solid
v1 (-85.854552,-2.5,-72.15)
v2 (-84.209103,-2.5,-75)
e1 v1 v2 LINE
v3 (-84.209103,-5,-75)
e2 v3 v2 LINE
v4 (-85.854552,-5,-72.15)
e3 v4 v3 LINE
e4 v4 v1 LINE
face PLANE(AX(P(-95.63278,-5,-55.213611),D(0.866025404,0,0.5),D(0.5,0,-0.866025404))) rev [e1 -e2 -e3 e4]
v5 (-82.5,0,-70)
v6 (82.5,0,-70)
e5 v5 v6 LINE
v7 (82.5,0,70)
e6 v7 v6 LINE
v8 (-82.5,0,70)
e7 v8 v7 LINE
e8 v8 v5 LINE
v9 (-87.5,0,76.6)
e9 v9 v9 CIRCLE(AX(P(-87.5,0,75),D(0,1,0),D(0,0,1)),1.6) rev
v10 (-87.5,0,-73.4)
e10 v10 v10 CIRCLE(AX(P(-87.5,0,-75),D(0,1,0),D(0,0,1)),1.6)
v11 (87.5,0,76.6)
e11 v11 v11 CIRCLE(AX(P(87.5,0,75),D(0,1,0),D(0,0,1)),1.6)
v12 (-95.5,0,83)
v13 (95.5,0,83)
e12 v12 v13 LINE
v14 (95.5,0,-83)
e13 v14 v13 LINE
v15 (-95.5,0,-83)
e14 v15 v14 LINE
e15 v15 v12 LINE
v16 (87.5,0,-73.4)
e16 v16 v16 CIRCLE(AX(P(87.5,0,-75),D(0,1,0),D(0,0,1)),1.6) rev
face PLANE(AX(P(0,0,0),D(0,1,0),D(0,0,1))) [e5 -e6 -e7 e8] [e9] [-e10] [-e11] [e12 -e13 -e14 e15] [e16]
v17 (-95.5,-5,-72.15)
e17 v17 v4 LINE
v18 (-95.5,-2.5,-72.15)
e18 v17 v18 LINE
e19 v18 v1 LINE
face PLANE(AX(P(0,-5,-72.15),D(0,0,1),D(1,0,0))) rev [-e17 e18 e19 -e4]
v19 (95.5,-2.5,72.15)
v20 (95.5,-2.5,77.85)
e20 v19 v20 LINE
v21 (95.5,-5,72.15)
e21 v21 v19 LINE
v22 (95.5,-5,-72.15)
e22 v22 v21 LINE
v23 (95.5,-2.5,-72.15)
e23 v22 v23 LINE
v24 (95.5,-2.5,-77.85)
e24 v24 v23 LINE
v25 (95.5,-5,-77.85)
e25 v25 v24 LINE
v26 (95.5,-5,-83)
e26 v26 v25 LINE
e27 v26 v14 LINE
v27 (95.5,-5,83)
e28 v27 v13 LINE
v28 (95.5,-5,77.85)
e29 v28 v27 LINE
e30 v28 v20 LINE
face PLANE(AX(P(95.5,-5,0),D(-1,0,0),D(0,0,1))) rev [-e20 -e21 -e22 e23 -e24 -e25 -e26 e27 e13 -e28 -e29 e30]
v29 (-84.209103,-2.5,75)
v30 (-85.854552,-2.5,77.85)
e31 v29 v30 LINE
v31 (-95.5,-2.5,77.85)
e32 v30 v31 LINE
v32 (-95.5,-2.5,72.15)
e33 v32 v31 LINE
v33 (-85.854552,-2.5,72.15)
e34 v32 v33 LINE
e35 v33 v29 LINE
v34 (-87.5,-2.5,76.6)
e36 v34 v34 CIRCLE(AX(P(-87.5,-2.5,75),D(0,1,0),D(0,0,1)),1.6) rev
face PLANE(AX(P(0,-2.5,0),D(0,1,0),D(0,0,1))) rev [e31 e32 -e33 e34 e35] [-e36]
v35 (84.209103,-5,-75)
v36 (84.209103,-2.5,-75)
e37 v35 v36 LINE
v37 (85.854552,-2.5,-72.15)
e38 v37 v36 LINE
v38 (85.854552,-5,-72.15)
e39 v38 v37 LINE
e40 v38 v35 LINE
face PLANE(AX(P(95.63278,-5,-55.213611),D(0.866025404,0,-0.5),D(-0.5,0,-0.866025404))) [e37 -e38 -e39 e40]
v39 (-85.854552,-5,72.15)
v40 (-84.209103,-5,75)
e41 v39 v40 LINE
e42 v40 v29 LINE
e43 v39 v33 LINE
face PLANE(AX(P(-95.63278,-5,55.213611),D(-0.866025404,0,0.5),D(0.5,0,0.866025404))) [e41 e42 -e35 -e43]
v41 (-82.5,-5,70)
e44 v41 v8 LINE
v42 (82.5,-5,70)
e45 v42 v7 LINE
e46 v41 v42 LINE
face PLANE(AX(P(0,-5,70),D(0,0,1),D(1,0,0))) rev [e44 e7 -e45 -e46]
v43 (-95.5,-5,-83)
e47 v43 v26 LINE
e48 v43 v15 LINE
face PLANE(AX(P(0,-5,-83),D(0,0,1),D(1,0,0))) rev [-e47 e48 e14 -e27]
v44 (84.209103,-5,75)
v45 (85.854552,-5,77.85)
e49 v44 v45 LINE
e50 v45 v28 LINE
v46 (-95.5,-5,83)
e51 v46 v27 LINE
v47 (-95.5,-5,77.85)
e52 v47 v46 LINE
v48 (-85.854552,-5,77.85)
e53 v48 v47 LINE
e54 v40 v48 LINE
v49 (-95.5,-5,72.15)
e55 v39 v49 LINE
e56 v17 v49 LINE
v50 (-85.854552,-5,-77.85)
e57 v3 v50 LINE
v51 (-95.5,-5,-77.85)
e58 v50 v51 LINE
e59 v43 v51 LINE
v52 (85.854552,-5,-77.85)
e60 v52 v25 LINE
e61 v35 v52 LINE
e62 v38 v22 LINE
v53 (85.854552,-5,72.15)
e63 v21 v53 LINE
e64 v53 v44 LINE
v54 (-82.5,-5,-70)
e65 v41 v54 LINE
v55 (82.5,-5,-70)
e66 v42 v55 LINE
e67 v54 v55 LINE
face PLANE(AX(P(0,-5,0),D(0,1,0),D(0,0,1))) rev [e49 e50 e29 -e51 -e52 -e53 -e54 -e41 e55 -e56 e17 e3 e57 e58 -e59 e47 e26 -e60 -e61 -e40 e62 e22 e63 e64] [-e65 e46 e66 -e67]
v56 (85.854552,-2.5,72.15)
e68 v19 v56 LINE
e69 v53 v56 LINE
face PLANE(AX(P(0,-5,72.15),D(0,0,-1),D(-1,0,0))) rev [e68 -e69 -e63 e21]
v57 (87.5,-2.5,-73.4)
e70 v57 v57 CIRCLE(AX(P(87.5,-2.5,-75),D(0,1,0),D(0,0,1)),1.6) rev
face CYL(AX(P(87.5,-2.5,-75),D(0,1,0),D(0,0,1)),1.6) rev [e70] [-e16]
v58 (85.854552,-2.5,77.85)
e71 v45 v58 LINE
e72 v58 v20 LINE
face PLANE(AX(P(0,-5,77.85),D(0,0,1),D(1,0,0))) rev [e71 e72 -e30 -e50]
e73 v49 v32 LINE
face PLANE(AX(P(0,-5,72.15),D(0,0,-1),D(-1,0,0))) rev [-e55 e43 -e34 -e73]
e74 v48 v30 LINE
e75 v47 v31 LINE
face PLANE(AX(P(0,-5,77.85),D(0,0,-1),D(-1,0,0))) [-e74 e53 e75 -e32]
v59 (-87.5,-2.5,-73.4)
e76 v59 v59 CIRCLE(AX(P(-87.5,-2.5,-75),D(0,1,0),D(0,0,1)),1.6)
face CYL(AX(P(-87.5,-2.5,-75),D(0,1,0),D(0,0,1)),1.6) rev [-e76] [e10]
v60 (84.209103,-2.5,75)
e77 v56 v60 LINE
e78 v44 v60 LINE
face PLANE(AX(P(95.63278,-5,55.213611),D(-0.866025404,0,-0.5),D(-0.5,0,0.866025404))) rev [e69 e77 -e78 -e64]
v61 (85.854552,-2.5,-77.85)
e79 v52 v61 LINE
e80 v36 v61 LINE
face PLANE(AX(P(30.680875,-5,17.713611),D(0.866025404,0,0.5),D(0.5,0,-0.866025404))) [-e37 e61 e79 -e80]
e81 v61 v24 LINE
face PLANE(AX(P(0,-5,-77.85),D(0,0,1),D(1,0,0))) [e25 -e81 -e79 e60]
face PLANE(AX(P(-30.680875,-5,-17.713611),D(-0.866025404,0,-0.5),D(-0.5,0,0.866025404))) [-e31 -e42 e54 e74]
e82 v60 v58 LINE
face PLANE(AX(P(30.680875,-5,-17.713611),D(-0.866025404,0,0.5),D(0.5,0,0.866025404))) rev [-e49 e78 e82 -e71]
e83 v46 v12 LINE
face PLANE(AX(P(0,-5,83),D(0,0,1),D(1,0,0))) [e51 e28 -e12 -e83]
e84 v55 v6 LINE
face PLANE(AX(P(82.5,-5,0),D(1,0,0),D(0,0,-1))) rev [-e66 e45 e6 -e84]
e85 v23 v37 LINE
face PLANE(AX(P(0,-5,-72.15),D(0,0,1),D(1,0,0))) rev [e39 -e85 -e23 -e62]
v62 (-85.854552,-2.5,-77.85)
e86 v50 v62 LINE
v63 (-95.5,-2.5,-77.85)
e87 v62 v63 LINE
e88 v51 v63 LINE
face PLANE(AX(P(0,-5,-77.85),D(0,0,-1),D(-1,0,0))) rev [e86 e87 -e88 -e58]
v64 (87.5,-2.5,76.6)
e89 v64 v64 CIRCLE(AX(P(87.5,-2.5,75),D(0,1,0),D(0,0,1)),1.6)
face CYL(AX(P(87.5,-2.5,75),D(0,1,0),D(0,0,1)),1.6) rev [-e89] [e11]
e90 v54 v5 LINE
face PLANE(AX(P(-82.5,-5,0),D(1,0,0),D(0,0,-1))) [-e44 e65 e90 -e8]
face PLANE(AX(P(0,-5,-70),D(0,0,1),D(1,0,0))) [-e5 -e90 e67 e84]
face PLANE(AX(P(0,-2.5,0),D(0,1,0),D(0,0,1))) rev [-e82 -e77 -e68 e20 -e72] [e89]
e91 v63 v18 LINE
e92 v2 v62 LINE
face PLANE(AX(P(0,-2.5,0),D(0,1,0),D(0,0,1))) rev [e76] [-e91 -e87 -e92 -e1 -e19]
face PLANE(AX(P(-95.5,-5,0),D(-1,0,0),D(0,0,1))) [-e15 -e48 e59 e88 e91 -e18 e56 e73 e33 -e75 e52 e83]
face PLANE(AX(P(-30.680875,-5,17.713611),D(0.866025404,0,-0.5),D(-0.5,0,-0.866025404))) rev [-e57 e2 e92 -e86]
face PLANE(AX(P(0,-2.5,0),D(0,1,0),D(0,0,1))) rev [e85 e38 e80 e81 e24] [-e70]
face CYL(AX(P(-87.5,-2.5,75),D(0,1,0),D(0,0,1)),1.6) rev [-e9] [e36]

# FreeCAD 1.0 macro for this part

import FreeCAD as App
import Part
import Sketcher

V = App.Vector
Q = App.Units.Quantity

doc = App.newDocument("Part")
body = doc.addObject("PartDesign::Body", "Body")

# Sketch on XZ plane
sketch1 = body.newObject("Sketcher::SketchObject", "Sketch")
sketch1.AttachmentSupport = (doc.getObject("XZ_Plane"), [""])
sketch1.MapMode = "FlatFace"
sketch1.addGeometry([
    Part.LineSegment(V(-95.5, 77.8, 0), V(-95.5, 83, 0)),  # 0
    Part.LineSegment(V(-95.5, 83, 0), V(95.5, 83, 0)),  # 1
    Part.LineSegment(V(95.5, 83, 0), V(95.5, 77.8, 0)),  # 2
    Part.LineSegment(V(95.5, 77.8, 0), V(85.9, 77.8, 0)),  # 3
    Part.LineSegment(V(85.9, 77.8, 0), V(84.2, 75, 0)),  # 4
    Part.LineSegment(V(84.2, 75, 0), V(85.9, 72.2, 0)),  # 5
    Part.LineSegment(V(85.9, 72.2, 0), V(95.5, 72.2, 0)),  # 6
    Part.LineSegment(V(95.5, 72.2, 0), V(95.5, -72.2, 0)),  # 7
    Part.LineSegment(V(95.5, -72.2, 0), V(85.9, -72.2, 0)),  # 8
    Part.LineSegment(V(85.9, -72.2, 0), V(84.2, -75, 0)),  # 9
    Part.LineSegment(V(84.2, -75, 0), V(85.9, -77.8, 0)),  # 10
    Part.LineSegment(V(85.9, -77.8, 0), V(95.5, -77.8, 0)),  # 11
    Part.LineSegment(V(95.5, -77.8, 0), V(95.5, -83, 0)),  # 12
    Part.LineSegment(V(95.5, -83, 0), V(-95.5, -83, 0)),  # 13
    Part.LineSegment(V(-95.5, -83, 0), V(-95.5, -77.8, 0)),  # 14
    Part.LineSegment(V(-95.5, -77.8, 0), V(-85.9, -77.8, 0)),  # 15
    Part.LineSegment(V(-85.9, -77.8, 0), V(-84.2, -75, 0)),  # 16
    Part.LineSegment(V(-84.2, -75, 0), V(-85.9, -72.2, 0)),  # 17
    Part.LineSegment(V(-85.9, -72.2, 0), V(-95.5, -72.2, 0)),  # 18
    Part.LineSegment(V(-95.5, -72.2, 0), V(-95.5, 72.2, 0)),  # 19
    Part.LineSegment(V(-95.5, 72.2, 0), V(-85.9, 72.2, 0)),  # 20
    Part.LineSegment(V(-85.9, 72.2, 0), V(-84.2, 75, 0)),  # 21
    Part.LineSegment(V(-84.2, 75, 0), V(-85.9, 77.8, 0)),  # 22
    Part.LineSegment(V(-85.9, 77.8, 0), V(-95.5, 77.8, 0)),  # 23
    Part.LineSegment(V(82.5, 70, 0), V(-82.5, 70, 0)),  # 24
    Part.LineSegment(V(-82.5, 70, 0), V(-82.5, -70, 0)),  # 25
    Part.LineSegment(V(-82.5, -70, 0), V(82.5, -70, 0)),  # 26
    Part.LineSegment(V(82.5, -70, 0), V(82.5, 70, 0)),  # 27
], False)
sketch1.addConstraint([
    Sketcher.Constraint("Coincident", 0, 2, 1, 1),
    Sketcher.Constraint("Coincident", 1, 2, 2, 1),
    Sketcher.Constraint("Coincident", 2, 2, 3, 1),
    Sketcher.Constraint("Coincident", 3, 2, 4, 1),
    Sketcher.Constraint("Coincident", 4, 2, 5, 1),
    Sketcher.Constraint("Coincident", 5, 2, 6, 1),
    Sketcher.Constraint("Coincident", 6, 2, 7, 1),
    Sketcher.Constraint("Coincident", 7, 2, 8, 1),
    Sketcher.Constraint("Coincident", 8, 2, 9, 1),
    Sketcher.Constraint("Coincident", 9, 2, 10, 1),
    Sketcher.Constraint("Coincident", 10, 2, 11, 1),
    Sketcher.Constraint("Coincident", 11, 2, 12, 1),
    Sketcher.Constraint("Coincident", 12, 2, 13, 1),
    Sketcher.Constraint("Coincident", 13, 2, 14, 1),
    Sketcher.Constraint("Coincident", 14, 2, 15, 1),
    Sketcher.Constraint("Coincident", 15, 2, 16, 1),
    Sketcher.Constraint("Coincident", 16, 2, 17, 1),
    Sketcher.Constraint("Coincident", 17, 2, 18, 1),
    Sketcher.Constraint("Coincident", 18, 2, 19, 1),
    Sketcher.Constraint("Coincident", 19, 2, 20, 1),
    Sketcher.Constraint("Coincident", 20, 2, 21, 1),
    Sketcher.Constraint("Coincident", 21, 2, 22, 1),
    Sketcher.Constraint("Coincident", 22, 2, 23, 1),
    Sketcher.Constraint("Coincident", 23, 2, 0, 1),
    Sketcher.Constraint("Coincident", 24, 2, 25, 1),
    Sketcher.Constraint("Coincident", 25, 2, 26, 1),
    Sketcher.Constraint("Coincident", 26, 2, 27, 1),
    Sketcher.Constraint("Coincident", 27, 2, 24, 1),
    Sketcher.Constraint("Vertical", 0),
    Sketcher.Constraint("Horizontal", 1),
    Sketcher.Constraint("Vertical", 2),
    Sketcher.Constraint("Horizontal", 3),
    Sketcher.Constraint("Horizontal", 6),
    Sketcher.Constraint("Vertical", 7),
    Sketcher.Constraint("Horizontal", 8),
    Sketcher.Constraint("Horizontal", 11),
    Sketcher.Constraint("Vertical", 12),
    Sketcher.Constraint("Horizontal", 13),
    Sketcher.Constraint("Vertical", 14),
    Sketcher.Constraint("Horizontal", 15),
    Sketcher.Constraint("Horizontal", 18),
    Sketcher.Constraint("Vertical", 19),
    Sketcher.Constraint("Horizontal", 20),
    Sketcher.Constraint("Horizontal", 23),
    Sketcher.Constraint("Horizontal", 24),
    Sketcher.Constraint("Vertical", 25),
    Sketcher.Constraint("Horizontal", 26),
    Sketcher.Constraint("Vertical", 27),
    Sketcher.Constraint("Symmetric", 0, 2, 12, 2, -1, 1),
    Sketcher.Constraint("Symmetric", 2, 2, 14, 2, -1, 1),
    Sketcher.Constraint("Symmetric", 4, 2, 16, 2, -1, 1),
    Sketcher.Constraint("Symmetric", 5, 2, 17, 2, -1, 1),
    Sketcher.Constraint("Symmetric", 7, 2, 19, 2, -1, 1),
    Sketcher.Constraint("Symmetric", 9, 2, 21, 2, -1, 1),
    Sketcher.Constraint("Symmetric", 10, 2, 22, 2, -1, 1),
    Sketcher.Constraint("Symmetric", 24, 2, 26, 2, -1, 1),
    Sketcher.Constraint("Symmetric", 11, 2, 14, 2, -2),
    Sketcher.Constraint("Symmetric", 9, 2, 16, 2, -2),
    Sketcher.Constraint("Symmetric", 8, 2, 17, 2, -2),
    Sketcher.Constraint("Parallel", 4, 9),
    Sketcher.Constraint("Parallel", 5, 10),
    Sketcher.Constraint("Parallel", 9, 16),
    Sketcher.Constraint("Parallel", 16, 21),
    Sketcher.Constraint("Vertical", 3, 2, 5, 2),
    Sketcher.Constraint("Vertical", 2, 2, 6, 2),
    Sketcher.Constraint("DistanceX", 1, 1, 1, 2, Q("191 mm")),
    Sketcher.Constraint("DistanceX", 24, 2, 24, 1, Q("165 mm")),
    Sketcher.Constraint("DistanceY", 25, 2, 25, 1, Q("140 mm")),
    Sketcher.Constraint("Angle", 4, Q("-120 deg")),
    Sketcher.Constraint("DistanceY", 7, 2, 7, 1, Q("144.3 mm")),
    Sketcher.Constraint("DistanceY", -1, 1, 0, 2, Q("83 mm")),
    Sketcher.Constraint("DistanceY", -1, 1, 4, 2, Q("75 mm")),
    Sketcher.Constraint("DistanceX", 3, 2, 3, 1, Q("9.645448 mm")),
])
pad1 = body.newObject("PartDesign::Pad", "Pad")
pad1.Profile = sketch1
pad1.Length = 5

# Sketch on XZ plane
sketch2 = body.newObject("Sketcher::SketchObject", "Sketch001")
sketch2.AttachmentSupport = (doc.getObject("XZ_Plane"), [""])
sketch2.MapMode = "FlatFace"
sketch2.addGeometry([
    Part.LineSegment(V(-85.9, -77.8, 0), V(-95.5, -77.8, 0)),  # 0
    Part.LineSegment(V(-95.5, -77.8, 0), V(-95.5, -72.2, 0)),  # 1
    Part.LineSegment(V(-95.5, -72.2, 0), V(-85.9, -72.2, 0)),  # 2
    Part.LineSegment(V(-85.9, -72.2, 0), V(-84.2, -75, 0)),  # 3
    Part.LineSegment(V(-84.2, -75, 0), V(-85.9, -77.8, 0)),  # 4
    Part.Circle(V(-87.5, -75, 0), V(0, 0, 1), 1.6),  # 5
    Part.LineSegment(V(-85.9, 72.2, 0), V(-95.5, 72.2, 0)),  # 6
    Part.LineSegment(V(-95.5, 72.2, 0), V(-95.5, 77.8, 0)),  # 7
    Part.LineSegment(V(-95.5, 77.8, 0), V(-85.9, 77.8, 0)),  # 8
    Part.LineSegment(V(-85.9, 77.8, 0), V(-84.2, 75, 0)),  # 9
    Part.LineSegment(V(-84.2, 75, 0), V(-85.9, 72.2, 0)),  # 10
    Part.Circle(V(-87.5, 75, 0), V(0, 0, 1), 1.6),  # 11
    Part.LineSegment(V(85.9, 77.8, 0), V(95.5, 77.8, 0)),  # 12
    Part.LineSegment(V(95.5, 77.8, 0), V(95.5, 72.2, 0)),  # 13
    Part.LineSegment(V(95.5, 72.2, 0), V(85.9, 72.2, 0)),  # 14
    Part.LineSegment(V(85.9, 72.2, 0), V(84.2, 75, 0)),  # 15
    Part.LineSegment(V(84.2, 75, 0), V(85.9, 77.8, 0)),  # 16
    Part.Circle(V(87.5, 75, 0), V(0, 0, 1), 1.6),  # 17
    Part.LineSegment(V(85.9, -72.2, 0), V(95.5, -72.2, 0)),  # 18
    Part.LineSegment(V(95.5, -72.2, 0), V(95.5, -77.8, 0)),  # 19
    Part.LineSegment(V(95.5, -77.8, 0), V(85.9, -77.8, 0)),  # 20
    Part.LineSegment(V(85.9, -77.8, 0), V(84.2, -75, 0)),  # 21
    Part.LineSegment(V(84.2, -75, 0), V(85.9, -72.2, 0)),  # 22
    Part.Circle(V(87.5, -75, 0), V(0, 0, 1), 1.6),  # 23
], False)
sketch2.addConstraint([
    Sketcher.Constraint("Coincident", 0, 2, 1, 1),
    Sketcher.Constraint("Coincident", 1, 2, 2, 1),
    Sketcher.Constraint("Coincident", 2, 2, 3, 1),
    Sketcher.Constraint("Coincident", 3, 2, 4, 1),
    Sketcher.Constraint("Coincident", 4, 2, 0, 1),
    Sketcher.Constraint("Coincident", 6, 2, 7, 1),
    Sketcher.Constraint("Coincident", 7, 2, 8, 1),
    Sketcher.Constraint("Coincident", 8, 2, 9, 1),
    Sketcher.Constraint("Coincident", 9, 2, 10, 1),
    Sketcher.Constraint("Coincident", 10, 2, 6, 1),
    Sketcher.Constraint("Coincident", 12, 2, 13, 1),
    Sketcher.Constraint("Coincident", 13, 2, 14, 1),
    Sketcher.Constraint("Coincident", 14, 2, 15, 1),
    Sketcher.Constraint("Coincident", 15, 2, 16, 1),
    Sketcher.Constraint("Coincident", 16, 2, 12, 1),
    Sketcher.Constraint("Coincident", 18, 2, 19, 1),
    Sketcher.Constraint("Coincident", 19, 2, 20, 1),
    Sketcher.Constraint("Coincident", 20, 2, 21, 1),
    Sketcher.Constraint("Coincident", 21, 2, 22, 1),
    Sketcher.Constraint("Coincident", 22, 2, 18, 1),
    Sketcher.Constraint("Horizontal", 0),
    Sketcher.Constraint("Vertical", 1),
    Sketcher.Constraint("Horizontal", 2),
    Sketcher.Constraint("Horizontal", 6),
    Sketcher.Constraint("Vertical", 7),
    Sketcher.Constraint("Horizontal", 8),
    Sketcher.Constraint("Horizontal", 12),
    Sketcher.Constraint("Vertical", 13),
    Sketcher.Constraint("Horizontal", 14),
    Sketcher.Constraint("Horizontal", 18),
    Sketcher.Constraint("Vertical", 19),
    Sketcher.Constraint("Horizontal", 20),
    Sketcher.Constraint("Equal", 5, 11),
    Sketcher.Constraint("Equal", 11, 17),
    Sketcher.Constraint("Equal", 17, 23),
    Sketcher.Constraint("Symmetric", 5, 3, 17, 3, -1, 1),
    Sketcher.Constraint("Symmetric", 11, 3, 23, 3, -1, 1),
    Sketcher.Constraint("Symmetric", 0, 2, 12, 2, -1, 1),
    Sketcher.Constraint("Symmetric", 2, 2, 14, 2, -1, 1),
    Sketcher.Constraint("Symmetric", 3, 2, 15, 2, -1, 1),
    Sketcher.Constraint("Symmetric", 6, 2, 18, 2, -1, 1),
    Sketcher.Constraint("Symmetric", 8, 2, 20, 2, -1, 1),
    Sketcher.Constraint("Symmetric", 9, 2, 21, 2, -1, 1),
    Sketcher.Constraint("Symmetric", 11, 3, 17, 3, -2),
    Sketcher.Constraint("Symmetric", 7, 2, 12, 2, -2),
    Sketcher.Constraint("Symmetric", 10, 2, 14, 2, -2),
    Sketcher.Constraint("Symmetric", 9, 2, 15, 2, -2),
    Sketcher.Constraint("Parallel", 3, 9),
    Sketcher.Constraint("Parallel", 4, 10),
    Sketcher.Constraint("Parallel", 10, 16),
    Sketcher.Constraint("Parallel", 16, 22),
    Sketcher.Constraint("Horizontal", 23, 3, 3, 2),
    Sketcher.Constraint("Vertical", 2, 2, 4, 2),
    Sketcher.Constraint("Diameter", 5, Q("3.2 mm")),
    Sketcher.Constraint("Angle", 3, Q("-60 deg")),
    Sketcher.Constraint("DistanceY", 1, 1, 1, 2, Q("5.7 mm")),
    Sketcher.Constraint("DistanceY", 5, 3, -1, 1, Q("75 mm")),
    Sketcher.Constraint("DistanceX", 11, 3, 17, 3, Q("175 mm")),
    Sketcher.Constraint("DistanceX", 0, 2, 5, 3, Q("8 mm")),
    Sketcher.Constraint("DistanceX", 0, 2, 0, 1, Q("9.645448 mm")),
])
pad2 = body.newObject("PartDesign::Pad", "Pad001")
pad2.Profile = sketch2
pad2.Length = 2.5

doc.recompute()
